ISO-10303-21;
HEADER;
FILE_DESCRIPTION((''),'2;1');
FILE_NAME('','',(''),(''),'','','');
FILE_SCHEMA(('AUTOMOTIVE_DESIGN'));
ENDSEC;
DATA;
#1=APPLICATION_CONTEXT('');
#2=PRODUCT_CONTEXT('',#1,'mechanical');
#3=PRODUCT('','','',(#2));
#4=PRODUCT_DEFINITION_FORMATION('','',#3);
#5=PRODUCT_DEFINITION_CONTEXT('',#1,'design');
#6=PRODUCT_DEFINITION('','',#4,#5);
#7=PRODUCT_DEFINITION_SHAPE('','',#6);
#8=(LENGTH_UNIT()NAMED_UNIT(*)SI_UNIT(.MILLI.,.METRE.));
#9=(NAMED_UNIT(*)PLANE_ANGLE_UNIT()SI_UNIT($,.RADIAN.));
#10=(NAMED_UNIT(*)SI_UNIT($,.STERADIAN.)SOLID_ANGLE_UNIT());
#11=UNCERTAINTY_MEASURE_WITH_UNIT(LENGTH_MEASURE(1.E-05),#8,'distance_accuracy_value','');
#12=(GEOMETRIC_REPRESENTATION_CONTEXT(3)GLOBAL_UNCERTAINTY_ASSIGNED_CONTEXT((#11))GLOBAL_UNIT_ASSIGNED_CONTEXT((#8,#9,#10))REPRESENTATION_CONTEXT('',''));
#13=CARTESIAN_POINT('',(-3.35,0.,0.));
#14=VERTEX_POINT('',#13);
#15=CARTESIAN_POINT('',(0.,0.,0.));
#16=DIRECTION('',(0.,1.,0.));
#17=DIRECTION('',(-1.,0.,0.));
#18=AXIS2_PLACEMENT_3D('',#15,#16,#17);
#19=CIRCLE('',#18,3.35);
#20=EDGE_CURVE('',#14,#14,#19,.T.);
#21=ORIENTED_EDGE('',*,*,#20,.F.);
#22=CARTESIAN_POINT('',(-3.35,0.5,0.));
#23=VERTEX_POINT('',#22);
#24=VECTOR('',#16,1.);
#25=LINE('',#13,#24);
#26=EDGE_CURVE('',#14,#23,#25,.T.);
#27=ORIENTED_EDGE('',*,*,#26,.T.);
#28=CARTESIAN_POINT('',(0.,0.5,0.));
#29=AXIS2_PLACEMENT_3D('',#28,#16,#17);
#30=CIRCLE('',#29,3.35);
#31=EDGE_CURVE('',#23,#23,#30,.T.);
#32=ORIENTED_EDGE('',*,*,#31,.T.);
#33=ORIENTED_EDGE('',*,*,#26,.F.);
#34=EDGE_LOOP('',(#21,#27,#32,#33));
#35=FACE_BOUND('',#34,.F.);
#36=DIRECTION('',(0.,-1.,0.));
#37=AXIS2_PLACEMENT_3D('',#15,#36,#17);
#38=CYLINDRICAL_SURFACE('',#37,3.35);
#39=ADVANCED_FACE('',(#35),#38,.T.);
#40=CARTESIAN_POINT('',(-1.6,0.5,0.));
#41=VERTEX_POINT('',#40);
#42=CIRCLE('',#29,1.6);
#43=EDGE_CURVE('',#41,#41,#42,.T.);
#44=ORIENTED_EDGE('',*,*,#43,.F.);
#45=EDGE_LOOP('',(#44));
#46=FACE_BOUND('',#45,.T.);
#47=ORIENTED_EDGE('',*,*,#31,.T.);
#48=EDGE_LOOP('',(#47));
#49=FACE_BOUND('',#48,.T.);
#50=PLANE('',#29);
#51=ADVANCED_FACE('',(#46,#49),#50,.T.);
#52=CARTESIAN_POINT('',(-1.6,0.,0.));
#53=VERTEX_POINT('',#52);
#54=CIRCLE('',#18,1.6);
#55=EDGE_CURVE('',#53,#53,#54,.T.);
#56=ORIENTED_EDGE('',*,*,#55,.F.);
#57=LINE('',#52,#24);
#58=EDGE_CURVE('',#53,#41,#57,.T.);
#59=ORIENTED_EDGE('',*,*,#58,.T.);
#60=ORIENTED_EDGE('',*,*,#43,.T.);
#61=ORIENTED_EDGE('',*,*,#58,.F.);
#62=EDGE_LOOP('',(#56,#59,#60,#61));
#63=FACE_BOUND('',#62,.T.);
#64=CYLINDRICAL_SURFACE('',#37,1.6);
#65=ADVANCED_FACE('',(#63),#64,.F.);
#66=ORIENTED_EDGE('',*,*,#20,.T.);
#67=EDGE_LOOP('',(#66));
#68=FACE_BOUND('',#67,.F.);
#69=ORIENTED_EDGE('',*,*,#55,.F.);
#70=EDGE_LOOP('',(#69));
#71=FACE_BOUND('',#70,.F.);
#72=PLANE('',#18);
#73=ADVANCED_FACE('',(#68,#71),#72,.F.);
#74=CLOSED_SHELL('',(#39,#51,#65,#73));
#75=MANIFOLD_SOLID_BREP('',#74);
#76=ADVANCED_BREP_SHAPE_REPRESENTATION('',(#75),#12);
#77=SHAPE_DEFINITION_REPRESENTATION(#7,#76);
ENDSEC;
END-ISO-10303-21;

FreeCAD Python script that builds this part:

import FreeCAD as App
import Part
import Sketcher
Q = App.Units.Quantity

doc = App.newDocument("Part")
body = doc.addObject("PartDesign::Body", "Body")

sketch1 = body.newObject("Sketcher::SketchObject", "Sketch")
sketch1.AttachmentSupport = (doc.getObject("XZ_Plane"), [""])
sketch1.MapMode = "FlatFace"
sketch1.addGeometry([
    Part.Circle(App.Vector(0, 0, 0), App.Vector(0, 0, 1), 3.4),
    Part.Circle(App.Vector(0, 0, 0), App.Vector(0, 0, 1), 1.6),
], False)
sketch1.addConstraint([
    Sketcher.Constraint("Coincident", 0, 3, -1, 1),
    Sketcher.Constraint("Coincident", 1, 3, -1, 1),
    Sketcher.Constraint("Diameter", 0, Q("6.7 mm")),
    Sketcher.Constraint("Diameter", 1, Q("3.2 mm")),
])
pad1 = body.newObject("PartDesign::Pad", "Pad")
pad1.Profile = sketch1
pad1.Length = 0.5
pad1.Reversed = True

doc.recompute()
